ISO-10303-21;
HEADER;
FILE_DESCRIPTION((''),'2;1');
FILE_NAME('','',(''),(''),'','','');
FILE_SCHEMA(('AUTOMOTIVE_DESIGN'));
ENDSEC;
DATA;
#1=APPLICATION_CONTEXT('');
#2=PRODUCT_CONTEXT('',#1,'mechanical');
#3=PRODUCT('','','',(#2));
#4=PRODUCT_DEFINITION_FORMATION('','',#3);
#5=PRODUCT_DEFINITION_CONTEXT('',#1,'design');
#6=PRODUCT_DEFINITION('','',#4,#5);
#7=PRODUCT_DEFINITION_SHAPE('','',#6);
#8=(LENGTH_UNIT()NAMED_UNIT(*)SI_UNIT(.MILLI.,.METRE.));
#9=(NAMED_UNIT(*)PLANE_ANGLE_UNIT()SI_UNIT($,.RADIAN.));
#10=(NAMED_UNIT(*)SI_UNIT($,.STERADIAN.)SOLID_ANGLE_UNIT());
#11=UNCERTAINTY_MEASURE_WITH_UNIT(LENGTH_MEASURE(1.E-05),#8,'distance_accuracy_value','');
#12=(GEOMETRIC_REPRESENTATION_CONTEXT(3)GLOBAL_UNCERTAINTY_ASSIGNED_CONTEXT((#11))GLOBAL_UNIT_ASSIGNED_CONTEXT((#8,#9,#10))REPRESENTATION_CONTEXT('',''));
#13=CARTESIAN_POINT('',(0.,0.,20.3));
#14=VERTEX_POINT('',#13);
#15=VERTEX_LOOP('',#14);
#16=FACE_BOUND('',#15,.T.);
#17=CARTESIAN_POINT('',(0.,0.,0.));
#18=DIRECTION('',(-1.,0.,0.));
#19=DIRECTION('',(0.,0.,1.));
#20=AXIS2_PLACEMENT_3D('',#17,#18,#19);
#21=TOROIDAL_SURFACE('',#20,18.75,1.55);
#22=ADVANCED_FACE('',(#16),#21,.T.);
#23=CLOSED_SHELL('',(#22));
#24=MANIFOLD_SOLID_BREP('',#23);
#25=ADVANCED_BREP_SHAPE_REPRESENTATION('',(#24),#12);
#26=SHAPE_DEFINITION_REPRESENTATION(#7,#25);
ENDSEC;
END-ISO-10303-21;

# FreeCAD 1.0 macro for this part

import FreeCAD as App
import Part
import Sketcher

doc = App.newDocument("Part")
body = doc.addObject("PartDesign::Body", "Body")

sketch1 = body.newObject("Sketcher::SketchObject", "Sketch")
sketch1.AttachmentSupport = (doc.getObject("XY_Plane"), [""])
sketch1.MapMode = "FlatFace"
sketch1.addGeometry(Part.Circle(App.Vector(0, 18.8, 0), App.Vector(0, 0, 1), 1.6), False)
sketch1.addConstraint(Sketcher.Constraint("PointOnObject", 0, 3, -2))
sketch1.addConstraint(Sketcher.Constraint("Diameter", 0, 3.1))
sketch1.addConstraint(Sketcher.Constraint("DistanceY", -1, 1, 0, 3, 18.75))
revolution = body.newObject("PartDesign::Revolution", "Revolution")
revolution.Profile = sketch1
revolution.ReferenceAxis = (sketch1, ["H_Axis"])
revolution.Angle = 360

doc.recompute()
